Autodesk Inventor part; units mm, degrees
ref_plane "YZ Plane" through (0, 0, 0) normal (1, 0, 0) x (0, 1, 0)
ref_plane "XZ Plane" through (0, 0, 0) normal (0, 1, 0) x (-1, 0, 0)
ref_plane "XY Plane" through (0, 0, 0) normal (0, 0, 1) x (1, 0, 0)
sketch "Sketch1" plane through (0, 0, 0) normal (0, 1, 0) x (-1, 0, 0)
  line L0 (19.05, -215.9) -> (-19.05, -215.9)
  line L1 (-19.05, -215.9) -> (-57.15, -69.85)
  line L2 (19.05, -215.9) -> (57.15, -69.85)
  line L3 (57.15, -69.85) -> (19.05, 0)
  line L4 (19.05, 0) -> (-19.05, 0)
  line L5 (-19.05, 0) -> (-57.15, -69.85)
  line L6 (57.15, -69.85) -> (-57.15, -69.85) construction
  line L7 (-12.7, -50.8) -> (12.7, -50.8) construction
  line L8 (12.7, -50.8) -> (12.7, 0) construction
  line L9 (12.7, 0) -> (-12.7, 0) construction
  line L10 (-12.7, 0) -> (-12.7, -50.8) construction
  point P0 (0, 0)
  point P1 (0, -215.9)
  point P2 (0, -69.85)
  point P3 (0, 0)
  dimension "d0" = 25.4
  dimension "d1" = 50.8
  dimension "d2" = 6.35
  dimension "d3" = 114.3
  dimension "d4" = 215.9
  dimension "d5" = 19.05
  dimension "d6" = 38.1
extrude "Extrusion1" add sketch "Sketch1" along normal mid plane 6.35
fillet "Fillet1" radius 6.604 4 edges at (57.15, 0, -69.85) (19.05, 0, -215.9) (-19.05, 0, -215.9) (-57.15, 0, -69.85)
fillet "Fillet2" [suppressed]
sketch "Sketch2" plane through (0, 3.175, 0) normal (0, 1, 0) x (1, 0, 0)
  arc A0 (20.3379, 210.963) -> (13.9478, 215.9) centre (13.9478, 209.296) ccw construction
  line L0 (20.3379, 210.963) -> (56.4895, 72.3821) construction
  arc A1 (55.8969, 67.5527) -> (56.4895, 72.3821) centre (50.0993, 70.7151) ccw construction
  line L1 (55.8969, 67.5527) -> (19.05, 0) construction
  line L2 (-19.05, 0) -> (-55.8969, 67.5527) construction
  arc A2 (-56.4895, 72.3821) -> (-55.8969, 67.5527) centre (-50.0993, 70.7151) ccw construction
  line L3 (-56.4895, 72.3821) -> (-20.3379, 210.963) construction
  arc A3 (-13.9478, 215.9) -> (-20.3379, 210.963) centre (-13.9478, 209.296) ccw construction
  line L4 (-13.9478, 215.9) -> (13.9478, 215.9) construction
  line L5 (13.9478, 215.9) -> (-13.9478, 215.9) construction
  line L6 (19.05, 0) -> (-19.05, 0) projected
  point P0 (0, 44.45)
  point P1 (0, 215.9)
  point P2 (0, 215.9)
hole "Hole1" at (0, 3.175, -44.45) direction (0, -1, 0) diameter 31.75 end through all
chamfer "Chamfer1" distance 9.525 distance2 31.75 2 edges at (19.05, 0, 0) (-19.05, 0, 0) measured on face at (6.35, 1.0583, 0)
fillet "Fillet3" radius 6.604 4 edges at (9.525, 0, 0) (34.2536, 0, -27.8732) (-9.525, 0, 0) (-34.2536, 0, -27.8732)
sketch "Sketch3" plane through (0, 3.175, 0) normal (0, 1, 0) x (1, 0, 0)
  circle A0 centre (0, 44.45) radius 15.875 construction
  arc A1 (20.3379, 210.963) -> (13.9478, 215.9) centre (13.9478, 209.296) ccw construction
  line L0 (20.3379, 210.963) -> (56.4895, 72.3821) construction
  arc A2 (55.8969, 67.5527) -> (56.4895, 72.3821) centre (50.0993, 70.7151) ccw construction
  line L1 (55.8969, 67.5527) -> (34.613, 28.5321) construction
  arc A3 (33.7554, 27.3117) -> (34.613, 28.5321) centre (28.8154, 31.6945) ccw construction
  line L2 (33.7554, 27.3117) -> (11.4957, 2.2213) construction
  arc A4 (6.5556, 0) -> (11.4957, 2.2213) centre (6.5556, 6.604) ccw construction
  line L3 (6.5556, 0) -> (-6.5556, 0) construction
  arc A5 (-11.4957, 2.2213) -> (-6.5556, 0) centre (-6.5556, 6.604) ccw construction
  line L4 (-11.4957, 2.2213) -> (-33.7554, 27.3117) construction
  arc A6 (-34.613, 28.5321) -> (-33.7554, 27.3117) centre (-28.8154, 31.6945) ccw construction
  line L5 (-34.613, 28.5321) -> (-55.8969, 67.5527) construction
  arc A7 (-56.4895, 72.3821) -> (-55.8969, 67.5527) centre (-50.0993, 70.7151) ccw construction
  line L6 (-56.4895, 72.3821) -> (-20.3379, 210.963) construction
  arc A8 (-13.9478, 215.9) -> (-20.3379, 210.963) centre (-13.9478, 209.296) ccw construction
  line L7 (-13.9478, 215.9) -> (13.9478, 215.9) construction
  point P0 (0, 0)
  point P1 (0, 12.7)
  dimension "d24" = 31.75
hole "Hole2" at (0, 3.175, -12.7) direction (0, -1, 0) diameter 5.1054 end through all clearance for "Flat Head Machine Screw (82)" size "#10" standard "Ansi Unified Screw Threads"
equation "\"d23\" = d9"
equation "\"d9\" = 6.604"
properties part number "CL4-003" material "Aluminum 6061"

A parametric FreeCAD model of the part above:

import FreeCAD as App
import Part
import Sketcher
from FreeCAD import Vector
Q = App.Units.Quantity


def edges_at(feature, points):
    """Names of the edges that pass closest to the given points."""
    edges = feature.Shape.Edges
    near = lambda p: min(range(len(edges)), key=lambda i: edges[i].distToShape(Part.Vertex(*p))[0])
    return sorted({f"Edge{near(p) + 1}" for p in points})

doc = App.newDocument("Part")
body = doc.addObject("PartDesign::Body", "Body")

# Sketch on XZ plane
sketch1 = body.newObject("Sketcher::SketchObject", "Sketch")
sketch1.AttachmentSupport = (doc.getObject("XZ_Plane"), [""])
sketch1.MapMode = "FlatFace"
sketch1.addGeometry([
    Part.LineSegment(Vector(19, -216, 0), Vector(-19, -216, 0)),  # 0
    Part.LineSegment(Vector(-19, -216, 0), Vector(-57, -70, 0)),  # 1
    Part.LineSegment(Vector(-57, -70, 0), Vector(-19, 0, 0)),  # 2
    Part.LineSegment(Vector(-19, 0, 0), Vector(19, 0, 0)),  # 3
    Part.LineSegment(Vector(19, 0, 0), Vector(57, -70, 0)),  # 4
    Part.LineSegment(Vector(57, -70, 0), Vector(19, -216, 0)),  # 5
], False)
sketch1.addConstraint([
    Sketcher.Constraint("Coincident", 0, 2, 1, 1),
    Sketcher.Constraint("Coincident", 1, 2, 2, 1),
    Sketcher.Constraint("Coincident", 2, 2, 3, 1),
    Sketcher.Constraint("Coincident", 3, 2, 4, 1),
    Sketcher.Constraint("Coincident", 4, 2, 5, 1),
    Sketcher.Constraint("Coincident", 5, 2, 0, 1),
    Sketcher.Constraint("Horizontal", 0),
    Sketcher.Constraint("Horizontal", 3),
    Sketcher.Constraint("Symmetric", 2, 2, 3, 2, -1, 1),
    Sketcher.Constraint("Symmetric", 1, 2, 4, 2, -2),
    Sketcher.Constraint("Vertical", 0, 2, 2, 2),
    Sketcher.Constraint("Vertical", 3, 2, 5, 2),
    Sketcher.Constraint("DistanceX", 0, 2, 0, 1, Q("1.5 in")),
    Sketcher.Constraint("DistanceY", 0, 2, -1, 1, Q("8.5 in")),
    Sketcher.Constraint("DistanceX", 1, 2, 0, 2, Q("1.5 in")),
    Sketcher.Constraint("DistanceY", 1, 2, -1, 1, Q("2.75 in")),
])
pad1 = body.newObject("PartDesign::Pad", "Pad")
pad1.Profile = sketch1
pad1.Length = Q("0.25 in")
pad1.Midplane = True
doc.recompute()

fillet = body.newObject("PartDesign::Fillet", "Fillet")
fillet.Base = (pad1, edges_at(pad1, [
    (57.15, 0, -69.85),
    (19.05, 0, -215.9),
    (-19.05, 0, -215.9),
    (-57.15, 0, -69.85),
]))
fillet.Radius = Q("0.26 in")

# Sketch on XZ plane
sketch2 = body.newObject("Sketcher::SketchObject", "Sketch001")
sketch2.AttachmentSupport = (doc.getObject("XZ_Plane"), [""])
sketch2.MapMode = "FlatFace"
sketch2.AttachmentOffset = App.Placement(Vector(0, 0, -0.125 * 25.4), App.Rotation())
sketch2.addGeometry(Part.Circle(Vector(0, -44, 0), Vector(0, 0, 1), 16), False)
sketch2.addConstraint([
    Sketcher.Constraint("PointOnObject", 0, 3, -2),
    Sketcher.Constraint("Diameter", 0, Q("1.25 in")),
    Sketcher.Constraint("DistanceY", 0, 3, -1, 1, Q("1.75 in")),
])
doc.recompute()
hole = body.newObject("PartDesign::Hole", "Hole")
hole.Profile = sketch2
hole.ThreadType = "None"
hole.Diameter = Q("1.25 in")
hole.DepthType = "ThroughAll"
hole.Reversed = True
doc.recompute()

chamfer = body.newObject("PartDesign::Chamfer", "Chamfer")
chamfer.Base = (hole, edges_at(hole, [(19.05, 0, 0), (-19.05, 0, 0)]))
chamfer.ChamferType = "Two distances"
chamfer.Size = Q("0.375 in")
chamfer.Size2 = Q("1.25 in")
chamfer.FlipDirection = True
doc.recompute()

fillet2 = body.newObject("PartDesign::Fillet", "Fillet001")
fillet2.Base = (chamfer, edges_at(chamfer, [
    (9.525, 0, 0),
    (34.254, 0, -27.873),
    (-9.525, 0, 0),
    (-34.254, 0, -27.873),
]))
fillet2.Radius = Q("0.26 in")

# Sketch on XZ plane
sketch3 = body.newObject("Sketcher::SketchObject", "Sketch002")
sketch3.AttachmentSupport = (doc.getObject("XZ_Plane"), [""])
sketch3.MapMode = "FlatFace"
sketch3.AttachmentOffset = App.Placement(Vector(0, 0, -0.125 * 25.4), App.Rotation())
sketch3.addGeometry(Part.Circle(Vector(0, -12.7, 0), Vector(0, 0, 1), 2.6), False)
sketch3.addConstraint([
    Sketcher.Constraint("PointOnObject", 0, 3, -2),
    Sketcher.Constraint("Diameter", 0, Q("0.201 in")),
    Sketcher.Constraint("DistanceY", 0, 3, -1, 1, Q("0.5 in")),
])
doc.recompute()
hole2 = body.newObject("PartDesign::Hole", "Hole001")
hole2.Profile = sketch3
hole2.ThreadType = "None"
hole2.Diameter = Q("0.201 in")
hole2.DepthType = "ThroughAll"
hole2.Reversed = True

doc.recompute()
